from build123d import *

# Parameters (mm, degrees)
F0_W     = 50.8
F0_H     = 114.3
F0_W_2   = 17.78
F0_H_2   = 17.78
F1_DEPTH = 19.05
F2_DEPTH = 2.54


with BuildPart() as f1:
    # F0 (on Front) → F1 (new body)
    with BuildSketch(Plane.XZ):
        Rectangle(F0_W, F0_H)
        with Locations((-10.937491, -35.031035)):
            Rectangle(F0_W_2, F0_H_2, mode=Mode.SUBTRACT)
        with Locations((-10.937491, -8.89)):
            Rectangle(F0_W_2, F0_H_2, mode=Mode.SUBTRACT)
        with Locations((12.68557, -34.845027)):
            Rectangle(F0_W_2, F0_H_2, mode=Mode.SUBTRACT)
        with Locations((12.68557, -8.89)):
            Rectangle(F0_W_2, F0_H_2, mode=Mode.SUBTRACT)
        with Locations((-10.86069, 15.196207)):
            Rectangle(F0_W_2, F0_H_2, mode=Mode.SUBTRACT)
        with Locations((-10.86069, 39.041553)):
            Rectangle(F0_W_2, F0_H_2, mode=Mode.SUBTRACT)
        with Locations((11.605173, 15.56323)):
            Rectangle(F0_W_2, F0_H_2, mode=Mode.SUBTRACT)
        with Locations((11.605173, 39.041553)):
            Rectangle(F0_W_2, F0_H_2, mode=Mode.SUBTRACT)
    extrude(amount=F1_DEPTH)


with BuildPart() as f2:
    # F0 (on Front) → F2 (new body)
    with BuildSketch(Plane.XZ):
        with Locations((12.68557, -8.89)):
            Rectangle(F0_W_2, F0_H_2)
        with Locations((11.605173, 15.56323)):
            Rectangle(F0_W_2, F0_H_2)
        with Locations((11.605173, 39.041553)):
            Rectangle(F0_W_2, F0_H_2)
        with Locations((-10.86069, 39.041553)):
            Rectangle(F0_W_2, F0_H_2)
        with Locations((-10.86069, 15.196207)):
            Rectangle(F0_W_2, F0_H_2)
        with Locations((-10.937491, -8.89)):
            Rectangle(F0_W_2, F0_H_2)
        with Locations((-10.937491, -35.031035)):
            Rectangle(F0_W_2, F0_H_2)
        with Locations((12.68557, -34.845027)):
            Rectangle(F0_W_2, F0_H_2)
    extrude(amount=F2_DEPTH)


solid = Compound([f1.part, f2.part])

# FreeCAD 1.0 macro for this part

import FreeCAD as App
import Part
import Sketcher

V = App.Vector
Q = App.Units.Quantity

doc = App.newDocument("Part")
params = doc.addObject("Spreadsheet::Sheet", "Params")
for row, (alias, value) in enumerate([
    ("sketch1_width", "2 in"),
    ("sketch1_width2", "0.7 in"),
    ("sketch1_height", "4.5 in"),
    ("pad1_length", "0.75 in"),
    ("sketch2_width", "0.7 in"),
    ("pad2_length", "0.1 in"),
], start=1):
    params.set(f"A{row}", alias)
    params.set(f"B{row}", "=" + value)
    params.setAlias(f"B{row}", alias)

body = doc.addObject("PartDesign::Body", "Body")

# Sketch on XZ plane
sketch1 = body.newObject("Sketcher::SketchObject", "Sketch")
sketch1.AttachmentSupport = (doc.getObject("XZ_Plane"), [""])
sketch1.MapMode = "FlatFace"
sketch1.addGeometry([
    Part.LineSegment(V(-25.4, 57.15, 0), V(-25.4, -57.15, 0)),  # 0
    Part.LineSegment(V(-25.4, -57.15, 0), V(25.4, -57.15, 0)),  # 1
    Part.LineSegment(V(25.4, -57.15, 0), V(25.4, 57.15, 0)),  # 2
    Part.LineSegment(V(25.4, 57.15, 0), V(-25.4, 57.15, 0)),  # 3
    Part.LineSegment(V(-2.047491, -43.921035, 0), V(-19.827491, -43.921035, 0)),  # 4
    Part.LineSegment(V(-19.827491, -43.921035, 0), V(-19.827491, -26.141035, 0)),  # 5
    Part.LineSegment(V(-19.827491, -26.141035, 0), V(-2.047491, -26.141035, 0)),  # 6
    Part.LineSegment(V(-2.047491, -26.141035, 0), V(-2.047491, -43.921035, 0)),  # 7
    Part.LineSegment(V(-2.047491, -17.78, 0), V(-19.827491, -17.78, 0)),  # 8
    Part.LineSegment(V(-19.827491, -17.78, 0), V(-19.827491, 0, 0)),  # 9
    Part.LineSegment(V(-19.827491, 0, 0), V(-2.047491, 0, 0)),  # 10
    Part.LineSegment(V(-2.047491, 0, 0), V(-2.047491, -17.78, 0)),  # 11
    Part.LineSegment(V(21.57557, -43.735027, 0), V(3.79557, -43.735027, 0)),  # 12
    Part.LineSegment(V(3.79557, -43.735027, 0), V(3.79557, -25.955027, 0)),  # 13
    Part.LineSegment(V(3.79557, -25.955027, 0), V(21.57557, -25.955027, 0)),  # 14
    Part.LineSegment(V(21.57557, -25.955027, 0), V(21.57557, -43.735027, 0)),  # 15
    Part.LineSegment(V(21.57557, -17.78, 0), V(3.79557, -17.78, 0)),  # 16
    Part.LineSegment(V(3.79557, -17.78, 0), V(3.79557, 0, 0)),  # 17
    Part.LineSegment(V(3.79557, 0, 0), V(21.57557, 0, 0)),  # 18
    Part.LineSegment(V(21.57557, 0, 0), V(21.57557, -17.78, 0)),  # 19
    Part.LineSegment(V(-1.97069, 6.306207, 0), V(-19.75069, 6.306207, 0)),  # 20
    Part.LineSegment(V(-19.75069, 6.306207, 0), V(-19.75069, 24.086207, 0)),  # 21
    Part.LineSegment(V(-19.75069, 24.086207, 0), V(-1.97069, 24.086207, 0)),  # 22
    Part.LineSegment(V(-1.97069, 24.086207, 0), V(-1.97069, 6.306207, 0)),  # 23
    Part.LineSegment(V(-1.97069, 30.151553, 0), V(-19.75069, 30.151553, 0)),  # 24
    Part.LineSegment(V(-19.75069, 30.151553, 0), V(-19.75069, 47.931553, 0)),  # 25
    Part.LineSegment(V(-19.75069, 47.931553, 0), V(-1.97069, 47.931553, 0)),  # 26
    Part.LineSegment(V(-1.97069, 47.931553, 0), V(-1.97069, 30.151553, 0)),  # 27
    Part.LineSegment(V(20.495173, 6.67323, 0), V(2.715173, 6.67323, 0)),  # 28
    Part.LineSegment(V(2.715173, 6.67323, 0), V(2.715173, 24.45323, 0)),  # 29
    Part.LineSegment(V(2.715173, 24.45323, 0), V(20.495173, 24.45323, 0)),  # 30
    Part.LineSegment(V(20.495173, 24.45323, 0), V(20.495173, 6.67323, 0)),  # 31
    Part.LineSegment(V(20.495173, 30.151553, 0), V(2.715173, 30.151553, 0)),  # 32
    Part.LineSegment(V(2.715173, 30.151553, 0), V(2.715173, 47.931553, 0)),  # 33
    Part.LineSegment(V(2.715173, 47.931553, 0), V(20.495173, 47.931553, 0)),  # 34
    Part.LineSegment(V(20.495173, 47.931553, 0), V(20.495173, 30.151553, 0)),  # 35
], False)
sketch1.addConstraint([
    Sketcher.Constraint("Coincident", 0, 2, 1, 1),
    Sketcher.Constraint("Coincident", 1, 2, 2, 1),
    Sketcher.Constraint("Coincident", 2, 2, 3, 1),
    Sketcher.Constraint("Coincident", 3, 2, 0, 1),
    Sketcher.Constraint("Coincident", 4, 2, 5, 1),
    Sketcher.Constraint("Coincident", 5, 2, 6, 1),
    Sketcher.Constraint("Coincident", 6, 2, 7, 1),
    Sketcher.Constraint("Coincident", 7, 2, 4, 1),
    Sketcher.Constraint("Coincident", 8, 2, 9, 1),
    Sketcher.Constraint("Coincident", 9, 2, 10, 1),
    Sketcher.Constraint("Coincident", 10, 2, 11, 1),
    Sketcher.Constraint("Coincident", 11, 2, 8, 1),
    Sketcher.Constraint("Coincident", 12, 2, 13, 1),
    Sketcher.Constraint("Coincident", 13, 2, 14, 1),
    Sketcher.Constraint("Coincident", 14, 2, 15, 1),
    Sketcher.Constraint("Coincident", 15, 2, 12, 1),
    Sketcher.Constraint("Coincident", 16, 2, 17, 1),
    Sketcher.Constraint("Coincident", 17, 2, 18, 1),
    Sketcher.Constraint("Coincident", 18, 2, 19, 1),
    Sketcher.Constraint("Coincident", 19, 2, 16, 1),
    Sketcher.Constraint("Coincident", 20, 2, 21, 1),
    Sketcher.Constraint("Coincident", 21, 2, 22, 1),
    Sketcher.Constraint("Coincident", 22, 2, 23, 1),
    Sketcher.Constraint("Coincident", 23, 2, 20, 1),
    Sketcher.Constraint("Coincident", 24, 2, 25, 1),
    Sketcher.Constraint("Coincident", 25, 2, 26, 1),
    Sketcher.Constraint("Coincident", 26, 2, 27, 1),
    Sketcher.Constraint("Coincident", 27, 2, 24, 1),
    Sketcher.Constraint("Coincident", 28, 2, 29, 1),
    Sketcher.Constraint("Coincident", 29, 2, 30, 1),
    Sketcher.Constraint("Coincident", 30, 2, 31, 1),
    Sketcher.Constraint("Coincident", 31, 2, 28, 1),
    Sketcher.Constraint("Coincident", 32, 2, 33, 1),
    Sketcher.Constraint("Coincident", 33, 2, 34, 1),
    Sketcher.Constraint("Coincident", 34, 2, 35, 1),
    Sketcher.Constraint("Coincident", 35, 2, 32, 1),
    Sketcher.Constraint("Vertical", 0),
    Sketcher.Constraint("Horizontal", 1),
    Sketcher.Constraint("Vertical", 2),
    Sketcher.Constraint("Horizontal", 3),
    Sketcher.Constraint("Horizontal", 4),
    Sketcher.Constraint("Vertical", 5),
    Sketcher.Constraint("Horizontal", 6),
    Sketcher.Constraint("Vertical", 7),
    Sketcher.Constraint("Horizontal", 8),
    Sketcher.Constraint("Vertical", 9),
    Sketcher.Constraint("Horizontal", 10),
    Sketcher.Constraint("Vertical", 11),
    Sketcher.Constraint("Horizontal", 12),
    Sketcher.Constraint("Vertical", 13),
    Sketcher.Constraint("Horizontal", 14),
    Sketcher.Constraint("Vertical", 15),
    Sketcher.Constraint("Horizontal", 16),
    Sketcher.Constraint("Vertical", 17),
    Sketcher.Constraint("Horizontal", 18),
    Sketcher.Constraint("Vertical", 19),
    Sketcher.Constraint("Horizontal", 20),
    Sketcher.Constraint("Vertical", 21),
    Sketcher.Constraint("Horizontal", 22),
    Sketcher.Constraint("Vertical", 23),
    Sketcher.Constraint("Horizontal", 24),
    Sketcher.Constraint("Vertical", 25),
    Sketcher.Constraint("Horizontal", 26),
    Sketcher.Constraint("Vertical", 27),
    Sketcher.Constraint("Horizontal", 28),
    Sketcher.Constraint("Vertical", 29),
    Sketcher.Constraint("Horizontal", 30),
    Sketcher.Constraint("Vertical", 31),
    Sketcher.Constraint("Horizontal", 32),
    Sketcher.Constraint("Vertical", 33),
    Sketcher.Constraint("Horizontal", 34),
    Sketcher.Constraint("Vertical", 35),
    Sketcher.Constraint("Symmetric", 0, 2, 2, 2, -1, 1),
    Sketcher.Constraint("PointOnObject", 9, 2, -1),
    Sketcher.Constraint("PointOnObject", 17, 2, -1),
    Sketcher.Constraint("Horizontal", 11, 2, 16, 2),
    Sketcher.Constraint("Horizontal", 27, 2, 32, 2),
    Sketcher.Constraint("Horizontal", 26, 2, 33, 2),
    Sketcher.Constraint("Vertical", 5, 2, 8, 2),
    Sketcher.Constraint("Vertical", 7, 2, 10, 2),
    Sketcher.Constraint("Vertical", 13, 2, 16, 2),
    Sketcher.Constraint("Vertical", 15, 2, 18, 2),
    Sketcher.Constraint("Vertical", 21, 2, 24, 2),
    Sketcher.Constraint("Vertical", 23, 2, 26, 2),
    Sketcher.Constraint("Vertical", 29, 2, 32, 2),
    Sketcher.Constraint("Vertical", 31, 2, 34, 2),
    Sketcher.Constraint("Equal", 10, 12),
    Sketcher.Constraint("Equal", 18, 20),
    Sketcher.Constraint("Equal", 26, 28),
    Sketcher.Constraint("Equal", 34, 5),
    Sketcher.Constraint("Equal", 7, 9),
    Sketcher.Constraint("Equal", 11, 13),
    Sketcher.Constraint("Equal", 19, 21),
    Sketcher.Constraint("Equal", 23, 25),
    Sketcher.Constraint("Equal", 27, 29),
    Sketcher.Constraint("DistanceX", 1, 1, 1, 2, Q("2 in")),
    Sketcher.Constraint("DistanceX", 4, 2, 4, 1, Q("0.7 in")),
    Sketcher.Constraint("DistanceY", 0, 2, 0, 1, Q("4.5 in")),
    Sketcher.Constraint("DistanceX", 9, 2, 20, 2, Q("0.076801 mm")),
    Sketcher.Constraint("DistanceX", 4, 2, -1, 1, Q("19.827491 mm")),
    Sketcher.Constraint("DistanceX", -1, 1, 12, 2, Q("3.79557 mm")),
    Sketcher.Constraint("DistanceY", -1, 1, 28, 2, Q("6.67323 mm")),
    Sketcher.Constraint("DistanceY", 7, 2, 12, 2, Q("0.186008 mm")),
    Sketcher.Constraint("DistanceY", 4, 2, -1, 1, Q("43.921035 mm")),
    Sketcher.Constraint("DistanceY", -1, 1, 20, 2, Q("6.306207 mm")),
    Sketcher.Constraint("DistanceY", -1, 1, 24, 2, Q("30.151553 mm")),
    Sketcher.Constraint("DistanceX", -1, 1, 28, 2, Q("2.715173 mm")),
])
sketch1.setExpression("Constraints[95]", "Params.sketch1_width")
sketch1.setExpression("Constraints[96]", "Params.sketch1_width2")
sketch1.setExpression("Constraints[97]", "Params.sketch1_height")
pad1 = body.newObject("PartDesign::Pad", "Pad")
pad1.Profile = sketch1
pad1.setExpression("Length", "Params.pad1_length")
body2 = doc.addObject("PartDesign::Body", "Body001")
body2.AllowCompound = True

# Sketch on XZ plane
sketch2 = body2.newObject("Sketcher::SketchObject", "Sketch001")
sketch2.AttachmentSupport = (doc.getObject("XZ_Plane001"), [""])
sketch2.MapMode = "FlatFace"
sketch2.addGeometry([
    Part.LineSegment(V(3.79557, 0, 0), V(3.79557, -17.78, 0)),  # 0
    Part.LineSegment(V(3.79557, -17.78, 0), V(21.57557, -17.78, 0)),  # 1
    Part.LineSegment(V(21.57557, -17.78, 0), V(21.57557, 0, 0)),  # 2
    Part.LineSegment(V(21.57557, 0, 0), V(3.79557, 0, 0)),  # 3
    Part.LineSegment(V(2.715173, 24.45323, 0), V(2.715173, 6.67323, 0)),  # 4
    Part.LineSegment(V(2.715173, 6.67323, 0), V(20.495173, 6.67323, 0)),  # 5
    Part.LineSegment(V(20.495173, 6.67323, 0), V(20.495173, 24.45323, 0)),  # 6
    Part.LineSegment(V(20.495173, 24.45323, 0), V(2.715173, 24.45323, 0)),  # 7
    Part.LineSegment(V(2.715173, 47.931553, 0), V(2.715173, 30.151553, 0)),  # 8
    Part.LineSegment(V(2.715173, 30.151553, 0), V(20.495173, 30.151553, 0)),  # 9
    Part.LineSegment(V(20.495173, 30.151553, 0), V(20.495173, 47.931553, 0)),  # 10
    Part.LineSegment(V(20.495173, 47.931553, 0), V(2.715173, 47.931553, 0)),  # 11
    Part.LineSegment(V(-19.75069, 47.931553, 0), V(-19.75069, 30.151553, 0)),  # 12
    Part.LineSegment(V(-19.75069, 30.151553, 0), V(-1.97069, 30.151553, 0)),  # 13
    Part.LineSegment(V(-1.97069, 30.151553, 0), V(-1.97069, 47.931553, 0)),  # 14
    Part.LineSegment(V(-1.97069, 47.931553, 0), V(-19.75069, 47.931553, 0)),  # 15
    Part.LineSegment(V(-19.75069, 24.086207, 0), V(-19.75069, 6.306207, 0)),  # 16
    Part.LineSegment(V(-19.75069, 6.306207, 0), V(-1.97069, 6.306207, 0)),  # 17
    Part.LineSegment(V(-1.97069, 6.306207, 0), V(-1.97069, 24.086207, 0)),  # 18
    Part.LineSegment(V(-1.97069, 24.086207, 0), V(-19.75069, 24.086207, 0)),  # 19
    Part.LineSegment(V(-19.827491, 0, 0), V(-19.827491, -17.78, 0)),  # 20
    Part.LineSegment(V(-19.827491, -17.78, 0), V(-2.047491, -17.78, 0)),  # 21
    Part.LineSegment(V(-2.047491, -17.78, 0), V(-2.047491, 0, 0)),  # 22
    Part.LineSegment(V(-2.047491, 0, 0), V(-19.827491, 0, 0)),  # 23
    Part.LineSegment(V(-19.827491, -26.141035, 0), V(-19.827491, -43.921035, 0)),  # 24
    Part.LineSegment(V(-19.827491, -43.921035, 0), V(-2.047491, -43.921035, 0)),  # 25
    Part.LineSegment(V(-2.047491, -43.921035, 0), V(-2.047491, -26.141035, 0)),  # 26
    Part.LineSegment(V(-2.047491, -26.141035, 0), V(-19.827491, -26.141035, 0)),  # 27
    Part.LineSegment(V(3.79557, -25.955027, 0), V(3.79557, -43.735027, 0)),  # 28
    Part.LineSegment(V(3.79557, -43.735027, 0), V(21.57557, -43.735027, 0)),  # 29
    Part.LineSegment(V(21.57557, -43.735027, 0), V(21.57557, -25.955027, 0)),  # 30
    Part.LineSegment(V(21.57557, -25.955027, 0), V(3.79557, -25.955027, 0)),  # 31
], False)
sketch2.addConstraint([
    Sketcher.Constraint("Coincident", 0, 2, 1, 1),
    Sketcher.Constraint("Coincident", 1, 2, 2, 1),
    Sketcher.Constraint("Coincident", 2, 2, 3, 1),
    Sketcher.Constraint("Coincident", 3, 2, 0, 1),
    Sketcher.Constraint("Coincident", 4, 2, 5, 1),
    Sketcher.Constraint("Coincident", 5, 2, 6, 1),
    Sketcher.Constraint("Coincident", 6, 2, 7, 1),
    Sketcher.Constraint("Coincident", 7, 2, 4, 1),
    Sketcher.Constraint("Coincident", 8, 2, 9, 1),
    Sketcher.Constraint("Coincident", 9, 2, 10, 1),
    Sketcher.Constraint("Coincident", 10, 2, 11, 1),
    Sketcher.Constraint("Coincident", 11, 2, 8, 1),
    Sketcher.Constraint("Coincident", 12, 2, 13, 1),
    Sketcher.Constraint("Coincident", 13, 2, 14, 1),
    Sketcher.Constraint("Coincident", 14, 2, 15, 1),
    Sketcher.Constraint("Coincident", 15, 2, 12, 1),
    Sketcher.Constraint("Coincident", 16, 2, 17, 1),
    Sketcher.Constraint("Coincident", 17, 2, 18, 1),
    Sketcher.Constraint("Coincident", 18, 2, 19, 1),
    Sketcher.Constraint("Coincident", 19, 2, 16, 1),
    Sketcher.Constraint("Coincident", 20, 2, 21, 1),
    Sketcher.Constraint("Coincident", 21, 2, 22, 1),
    Sketcher.Constraint("Coincident", 22, 2, 23, 1),
    Sketcher.Constraint("Coincident", 23, 2, 20, 1),
    Sketcher.Constraint("Coincident", 24, 2, 25, 1),
    Sketcher.Constraint("Coincident", 25, 2, 26, 1),
    Sketcher.Constraint("Coincident", 26, 2, 27, 1),
    Sketcher.Constraint("Coincident", 27, 2, 24, 1),
    Sketcher.Constraint("Coincident", 28, 2, 29, 1),
    Sketcher.Constraint("Coincident", 29, 2, 30, 1),
    Sketcher.Constraint("Coincident", 30, 2, 31, 1),
    Sketcher.Constraint("Coincident", 31, 2, 28, 1),
    Sketcher.Constraint("Vertical", 0),
    Sketcher.Constraint("Horizontal", 1),
    Sketcher.Constraint("Vertical", 2),
    Sketcher.Constraint("Horizontal", 3),
    Sketcher.Constraint("Vertical", 4),
    Sketcher.Constraint("Horizontal", 5),
    Sketcher.Constraint("Vertical", 6),
    Sketcher.Constraint("Horizontal", 7),
    Sketcher.Constraint("Vertical", 8),
    Sketcher.Constraint("Horizontal", 9),
    Sketcher.Constraint("Vertical", 10),
    Sketcher.Constraint("Horizontal", 11),
    Sketcher.Constraint("Vertical", 12),
    Sketcher.Constraint("Horizontal", 13),
    Sketcher.Constraint("Vertical", 14),
    Sketcher.Constraint("Horizontal", 15),
    Sketcher.Constraint("Vertical", 16),
    Sketcher.Constraint("Horizontal", 17),
    Sketcher.Constraint("Vertical", 18),
    Sketcher.Constraint("Horizontal", 19),
    Sketcher.Constraint("Vertical", 20),
    Sketcher.Constraint("Horizontal", 21),
    Sketcher.Constraint("Vertical", 22),
    Sketcher.Constraint("Horizontal", 23),
    Sketcher.Constraint("Vertical", 24),
    Sketcher.Constraint("Horizontal", 25),
    Sketcher.Constraint("Vertical", 26),
    Sketcher.Constraint("Horizontal", 27),
    Sketcher.Constraint("Vertical", 28),
    Sketcher.Constraint("Horizontal", 29),
    Sketcher.Constraint("Vertical", 30),
    Sketcher.Constraint("Horizontal", 31),
    Sketcher.Constraint("PointOnObject", 2, 2, -1),
    Sketcher.Constraint("PointOnObject", 22, 2, -1),
    Sketcher.Constraint("Horizontal", 9, 2, 12, 2),
    Sketcher.Constraint("Horizontal", 11, 2, 14, 2),
    Sketcher.Constraint("Horizontal", 1, 2, 20, 2),
    Sketcher.Constraint("Vertical", 7, 2, 8, 2),
    Sketcher.Constraint("Vertical", 6, 2, 9, 2),
    Sketcher.Constraint("Vertical", 15, 2, 16, 2),
    Sketcher.Constraint("Vertical", 14, 2, 17, 2),
    Sketcher.Constraint("Vertical", 23, 2, 24, 2),
    Sketcher.Constraint("Vertical", 22, 2, 25, 2),
    Sketcher.Constraint("Vertical", 3, 2, 28, 2),
    Sketcher.Constraint("Vertical", 2, 2, 29, 2),
    Sketcher.Constraint("Equal", 3, 5),
    Sketcher.Constraint("Equal", 11, 13),
    Sketcher.Constraint("Equal", 19, 21),
    Sketcher.Constraint("Equal", 31, 0),
    Sketcher.Constraint("Equal", 2, 4),
    Sketcher.Constraint("Equal", 6, 8),
    Sketcher.Constraint("Equal", 14, 16),
    Sketcher.Constraint("Equal", 22, 24),
    Sketcher.Constraint("Equal", 26, 28),
    Sketcher.Constraint("DistanceX", 1, 1, 1, 2, Q("0.7 in")),
    Sketcher.Constraint("DistanceX", 20, 2, 16, 2, Q("0.076801 mm")),
    Sketcher.Constraint("DistanceX", -1, 1, 0, 2, Q("3.79557 mm")),
    Sketcher.Constraint("DistanceY", -1, 1, 4, 2, Q("6.67323 mm")),
    Sketcher.Constraint("DistanceX", 12, 2, -1, 1, Q("19.75069 mm")),
    Sketcher.Constraint("DistanceY", 25, 2, 28, 2, Q("0.186008 mm")),
    Sketcher.Constraint("DistanceX", -1, 1, 4, 2, Q("2.715173 mm")),
    Sketcher.Constraint("DistanceY", -1, 1, 8, 2, Q("30.151553 mm")),
    Sketcher.Constraint("DistanceY", -1, 1, 16, 2, Q("6.306207 mm")),
    Sketcher.Constraint("DistanceY", 24, 2, -1, 1, Q("43.921035 mm")),
])
sketch2.setExpression("Constraints[86]", "Params.sketch2_width")
pad2 = body2.newObject("PartDesign::Pad", "Pad001")
pad2.Profile = sketch2
pad2.setExpression("Length", "Params.pad2_length")

doc.recompute()
